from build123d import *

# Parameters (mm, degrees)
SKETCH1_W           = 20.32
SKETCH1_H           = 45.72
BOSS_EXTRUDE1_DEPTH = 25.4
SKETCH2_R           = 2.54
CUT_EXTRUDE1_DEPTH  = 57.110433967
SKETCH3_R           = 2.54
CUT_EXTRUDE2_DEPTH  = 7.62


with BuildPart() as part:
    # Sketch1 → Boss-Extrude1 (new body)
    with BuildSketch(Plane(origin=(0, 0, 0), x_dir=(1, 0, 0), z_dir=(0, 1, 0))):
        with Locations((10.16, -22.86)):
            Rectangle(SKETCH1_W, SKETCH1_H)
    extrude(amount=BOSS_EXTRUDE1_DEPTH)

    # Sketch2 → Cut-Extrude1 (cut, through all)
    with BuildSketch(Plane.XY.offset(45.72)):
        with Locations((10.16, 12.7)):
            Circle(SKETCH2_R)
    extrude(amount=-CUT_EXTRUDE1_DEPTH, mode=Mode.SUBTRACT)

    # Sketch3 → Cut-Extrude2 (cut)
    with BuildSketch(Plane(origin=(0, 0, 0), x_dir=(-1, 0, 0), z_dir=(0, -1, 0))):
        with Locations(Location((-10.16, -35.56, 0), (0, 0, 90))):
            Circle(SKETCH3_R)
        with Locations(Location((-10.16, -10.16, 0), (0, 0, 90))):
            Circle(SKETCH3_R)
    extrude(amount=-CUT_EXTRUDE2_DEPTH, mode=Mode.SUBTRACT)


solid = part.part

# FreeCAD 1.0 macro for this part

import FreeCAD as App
import Part
import Sketcher
from FreeCAD import Vector
Q = App.Units.Quantity


def add_polygon(sketch, points):
    """Adds a closed chain of lines whose ends are joined by coincident constraints."""
    first, n = sketch.GeometryCount, len(points)
    for a, b in zip(points, points[1:] + points[:1]):
        sketch.addGeometry(Part.LineSegment(App.Vector(*a, 0), App.Vector(*b, 0)), False)
    for i in range(n):
        sketch.addConstraint(Sketcher.Constraint("Coincident", first + i, 2, first + (i + 1) % n, 1))

doc = App.newDocument("Part")
body = doc.addObject("PartDesign::Body", "Body")

sketch1 = body.newObject("Sketcher::SketchObject", "Sketch")
sketch1.AttachmentSupport = (doc.getObject("XZ_Plane"), [""])
sketch1.MapMode = "FlatFace"
add_polygon(sketch1, [(0, 0), (0, 45.72), (20.32, 45.72), (20.32, 0)])
sketch1.addConstraint(Sketcher.Constraint("Vertical", 0))
sketch1.addConstraint(Sketcher.Constraint("Horizontal", 1))
sketch1.addConstraint(Sketcher.Constraint("Vertical", 2))
sketch1.addConstraint(Sketcher.Constraint("Horizontal", 3))
sketch1.addConstraint(Sketcher.Constraint("Coincident", 3, 2, -1, 1))
sketch1.addConstraint(Sketcher.Constraint("DistanceX", 1, 1, 1, 2, Q("0.8 in")))
sketch1.addConstraint(Sketcher.Constraint("DistanceY", 0, 1, 0, 2, Q("1.8 in")))
pad1 = body.newObject("PartDesign::Pad", "Pad")
pad1.Profile = sketch1
pad1.Length = Q("1 in")
pad1.Reversed = True

sketch2 = body.newObject("Sketcher::SketchObject", "Sketch001")
sketch2.AttachmentSupport = (doc.getObject("XY_Plane"), [""])
sketch2.MapMode = "FlatFace"
sketch2.AttachmentOffset = App.Placement(Vector(0, 0, 1.8 * 25.4), App.Rotation())
sketch2.addGeometry(Part.Circle(Vector(10.16, 12.7, 0), Vector(0, 0, 1), 2.54), False)
sketch2.addConstraint(Sketcher.Constraint("Diameter", 0, Q("0.2 in")))
sketch2.addConstraint(Sketcher.Constraint("DistanceX", -1, 1, 0, 3, Q("0.4 in")))
sketch2.addConstraint(Sketcher.Constraint("DistanceY", -1, 1, 0, 3, Q("0.5 in")))
pocket1 = body.newObject("PartDesign::Pocket", "Pocket")
pocket1.Profile = sketch2
pocket1.Type = "ThroughAll"

sketch3 = body.newObject("Sketcher::SketchObject", "Sketch002")
sketch3.AttachmentSupport = (doc.getObject("XZ_Plane"), [""])
sketch3.MapMode = "FlatFace"
sketch3.addGeometry(Part.Circle(Vector(10.16, 35.56, 0), Vector(0, 0, 1), 2.54), False)
sketch3.addGeometry(Part.Circle(Vector(10.16, 10.16, 0), Vector(0, 0, 1), 2.54), False)
sketch3.addConstraint(Sketcher.Constraint("Equal", 0, 1))
sketch3.addConstraint(Sketcher.Constraint("Vertical", 0, 3, 1, 3))
sketch3.addConstraint(Sketcher.Constraint("Diameter", 0, Q("0.2 in")))
sketch3.addConstraint(Sketcher.Constraint("DistanceY", 1, 3, 0, 3, Q("1 in")))
sketch3.addConstraint(Sketcher.Constraint("DistanceX", -1, 1, 0, 3, Q("0.4 in")))
sketch3.addConstraint(Sketcher.Constraint("DistanceY", -1, 1, 0, 3, Q("1.4 in")))
pocket2 = body.newObject("PartDesign::Pocket", "Pocket001")
pocket2.Profile = sketch3
pocket2.Length = Q("0.3 in")

doc.recompute()
